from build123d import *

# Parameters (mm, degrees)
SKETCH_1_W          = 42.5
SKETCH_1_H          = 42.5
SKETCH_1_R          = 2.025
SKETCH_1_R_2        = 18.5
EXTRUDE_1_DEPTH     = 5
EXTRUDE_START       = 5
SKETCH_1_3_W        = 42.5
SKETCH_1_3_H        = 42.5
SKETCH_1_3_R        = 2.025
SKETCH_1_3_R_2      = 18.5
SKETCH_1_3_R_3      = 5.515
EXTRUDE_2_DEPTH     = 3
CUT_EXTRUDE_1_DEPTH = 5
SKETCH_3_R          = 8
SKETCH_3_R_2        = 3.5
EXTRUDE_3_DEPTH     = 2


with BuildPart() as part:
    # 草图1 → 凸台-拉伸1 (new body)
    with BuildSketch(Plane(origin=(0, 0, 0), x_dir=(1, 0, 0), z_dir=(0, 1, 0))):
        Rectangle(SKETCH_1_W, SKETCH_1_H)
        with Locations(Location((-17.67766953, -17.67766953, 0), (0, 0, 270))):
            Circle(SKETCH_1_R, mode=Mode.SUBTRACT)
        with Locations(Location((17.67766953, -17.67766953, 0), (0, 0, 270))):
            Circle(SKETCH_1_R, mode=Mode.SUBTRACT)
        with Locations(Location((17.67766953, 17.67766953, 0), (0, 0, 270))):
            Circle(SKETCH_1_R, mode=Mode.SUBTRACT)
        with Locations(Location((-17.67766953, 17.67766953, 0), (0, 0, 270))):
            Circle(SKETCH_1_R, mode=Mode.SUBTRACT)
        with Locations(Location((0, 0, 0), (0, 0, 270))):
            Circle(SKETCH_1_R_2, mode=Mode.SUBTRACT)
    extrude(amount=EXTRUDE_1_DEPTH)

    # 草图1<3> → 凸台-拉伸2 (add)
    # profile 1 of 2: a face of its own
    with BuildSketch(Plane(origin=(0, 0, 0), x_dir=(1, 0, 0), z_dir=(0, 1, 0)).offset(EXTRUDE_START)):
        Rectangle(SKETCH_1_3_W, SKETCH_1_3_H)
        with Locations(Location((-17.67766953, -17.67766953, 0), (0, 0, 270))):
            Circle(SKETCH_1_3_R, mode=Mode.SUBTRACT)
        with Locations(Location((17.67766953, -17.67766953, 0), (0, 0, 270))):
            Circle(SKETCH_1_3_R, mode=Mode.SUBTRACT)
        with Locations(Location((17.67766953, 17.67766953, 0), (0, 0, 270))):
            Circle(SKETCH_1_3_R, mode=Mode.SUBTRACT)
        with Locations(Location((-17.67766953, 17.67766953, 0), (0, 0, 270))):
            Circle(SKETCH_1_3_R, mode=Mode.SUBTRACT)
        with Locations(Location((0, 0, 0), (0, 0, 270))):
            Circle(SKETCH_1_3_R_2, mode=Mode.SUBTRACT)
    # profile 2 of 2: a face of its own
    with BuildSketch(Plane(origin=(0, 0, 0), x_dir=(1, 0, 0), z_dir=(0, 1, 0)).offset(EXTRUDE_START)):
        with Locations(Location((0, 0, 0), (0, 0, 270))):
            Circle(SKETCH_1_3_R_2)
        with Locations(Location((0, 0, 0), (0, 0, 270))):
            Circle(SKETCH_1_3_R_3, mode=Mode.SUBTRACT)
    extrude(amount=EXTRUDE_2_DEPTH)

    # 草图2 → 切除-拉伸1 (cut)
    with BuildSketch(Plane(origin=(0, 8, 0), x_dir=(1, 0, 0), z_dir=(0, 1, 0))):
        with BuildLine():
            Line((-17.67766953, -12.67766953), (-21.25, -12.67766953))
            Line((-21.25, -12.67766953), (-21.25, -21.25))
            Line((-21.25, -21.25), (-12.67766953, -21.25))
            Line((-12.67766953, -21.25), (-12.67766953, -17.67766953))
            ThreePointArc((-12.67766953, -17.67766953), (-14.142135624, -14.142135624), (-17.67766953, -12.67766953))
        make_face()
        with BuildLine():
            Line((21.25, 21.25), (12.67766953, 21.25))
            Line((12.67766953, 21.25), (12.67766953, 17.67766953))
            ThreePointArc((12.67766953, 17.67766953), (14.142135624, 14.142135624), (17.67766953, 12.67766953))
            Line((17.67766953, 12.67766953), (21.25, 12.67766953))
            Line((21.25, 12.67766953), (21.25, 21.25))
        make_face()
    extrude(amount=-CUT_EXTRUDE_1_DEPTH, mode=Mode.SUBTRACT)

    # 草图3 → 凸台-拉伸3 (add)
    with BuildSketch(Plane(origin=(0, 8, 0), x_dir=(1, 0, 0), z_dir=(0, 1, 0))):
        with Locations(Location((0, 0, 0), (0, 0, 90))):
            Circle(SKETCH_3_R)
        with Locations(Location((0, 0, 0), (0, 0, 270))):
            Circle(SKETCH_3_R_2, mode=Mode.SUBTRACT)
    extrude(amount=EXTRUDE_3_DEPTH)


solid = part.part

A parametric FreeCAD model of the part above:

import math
import FreeCAD as App
import Part
import Sketcher
from FreeCAD import Vector
Q = App.Units.Quantity

doc = App.newDocument("Part")
body = doc.addObject("PartDesign::Body", "Body")

# Sketch on XZ plane
sketch1 = body.newObject("Sketcher::SketchObject", "Sketch")
sketch1.AttachmentSupport = (doc.getObject("XZ_Plane"), [""])
sketch1.MapMode = "FlatFace"
sketch1.addGeometry(Part.LineSegment(Vector(-21.25, -21.25, 0), Vector(-21.25, 21.25, 0)), False)
sketch1.addGeometry(Part.LineSegment(Vector(-21.25, 21.25, 0), Vector(21.25, 21.25, 0)), False)
sketch1.addGeometry(Part.LineSegment(Vector(21.25, 21.25, 0), Vector(21.25, -21.25, 0)), False)
sketch1.addGeometry(Part.LineSegment(Vector(21.25, -21.25, 0), Vector(-21.25, -21.25, 0)), False)
sketch1.addGeometry(Part.Circle(Vector(-17.67767, 17.67767, 0), Vector(0, 0, 1), 2.025), False)
sketch1.addGeometry(Part.Circle(Vector(17.67767, 17.67767, 0), Vector(0, 0, 1), 2.025), False)
sketch1.addGeometry(Part.Circle(Vector(0, 0, 0), Vector(0, 0, 1), 18.5), False)
sketch1.addGeometry(Part.Circle(Vector(-17.67767, -17.67767, 0), Vector(0, 0, 1), 2.025), False)
sketch1.addGeometry(Part.Circle(Vector(17.67767, -17.67767, 0), Vector(0, 0, 1), 2.025), False)
sketch1.addConstraint(Sketcher.Constraint("Coincident", 0, 2, 1, 1))
sketch1.addConstraint(Sketcher.Constraint("Coincident", 1, 2, 2, 1))
sketch1.addConstraint(Sketcher.Constraint("Coincident", 2, 2, 3, 1))
sketch1.addConstraint(Sketcher.Constraint("Coincident", 3, 2, 0, 1))
sketch1.addConstraint(Sketcher.Constraint("Vertical", 0))
sketch1.addConstraint(Sketcher.Constraint("Horizontal", 1))
sketch1.addConstraint(Sketcher.Constraint("Vertical", 2))
sketch1.addConstraint(Sketcher.Constraint("Horizontal", 3))
sketch1.addConstraint(Sketcher.Constraint("Coincident", 6, 3, -1, 1))
sketch1.addConstraint(Sketcher.Constraint("Equal", 4, 5))
sketch1.addConstraint(Sketcher.Constraint("Equal", 5, 7))
sketch1.addConstraint(Sketcher.Constraint("Equal", 7, 8))
sketch1.addConstraint(Sketcher.Constraint("Symmetric", 5, 3, 7, 3, -1, 1))
sketch1.addConstraint(Sketcher.Constraint("Symmetric", 4, 3, 8, 3, -1, 1))
sketch1.addConstraint(Sketcher.Constraint("Symmetric", 0, 2, 2, 2, -1, 1))
sketch1.addConstraint(Sketcher.Constraint("Symmetric", 4, 3, 5, 3, -2))
sketch1.addConstraint(Sketcher.Constraint("Equal", 3, 0))
sketch1.addConstraint(Sketcher.Constraint("Diameter", 6, Q("37 mm")))
sketch1.addConstraint(Sketcher.Constraint("Diameter", 4, Q("4.05 mm")))
sketch1.addConstraint(Sketcher.Constraint("DistanceX", 1, 1, 1, 2, Q("42.5 mm")))
sketch1.addConstraint(Sketcher.Constraint("DistanceX", 4, 3, -1, 1, Q("17.67767 mm")))
sketch1.addConstraint(Sketcher.Constraint("DistanceY", -1, 1, 4, 3, Q("17.67767 mm")))
pad1 = body.newObject("PartDesign::Pad", "Pad")
pad1.Profile = sketch1
pad1.Length = 5
pad1.Reversed = True

# Sketch on XZ plane
sketch2 = body.newObject("Sketcher::SketchObject", "Sketch001")
sketch2.AttachmentSupport = (doc.getObject("XZ_Plane"), [""])
sketch2.MapMode = "FlatFace"
sketch2.AttachmentOffset = App.Placement(Vector(0, 0, -5), App.Rotation())
sketch2.addGeometry(Part.LineSegment(Vector(-21.25, -21.25, 0), Vector(-21.25, 21.25, 0)), False)
sketch2.addGeometry(Part.LineSegment(Vector(-21.25, 21.25, 0), Vector(21.25, 21.25, 0)), False)
sketch2.addGeometry(Part.LineSegment(Vector(21.25, 21.25, 0), Vector(21.25, -21.25, 0)), False)
sketch2.addGeometry(Part.LineSegment(Vector(21.25, -21.25, 0), Vector(-21.25, -21.25, 0)), False)
sketch2.addGeometry(Part.Circle(Vector(-17.67767, 17.67767, 0), Vector(0, 0, 1), 2.025), False)
sketch2.addGeometry(Part.Circle(Vector(17.67767, 17.67767, 0), Vector(0, 0, 1), 2.025), False)
sketch2.addGeometry(Part.Circle(Vector(-17.67767, -17.67767, 0), Vector(0, 0, 1), 2.025), False)
sketch2.addGeometry(Part.Circle(Vector(17.67767, -17.67767, 0), Vector(0, 0, 1), 2.025), False)
sketch2.addGeometry(Part.Circle(Vector(0, 0, 0), Vector(0, 0, 1), 5.515), False)
sketch2.addConstraint(Sketcher.Constraint("Coincident", 0, 2, 1, 1))
sketch2.addConstraint(Sketcher.Constraint("Coincident", 1, 2, 2, 1))
sketch2.addConstraint(Sketcher.Constraint("Coincident", 2, 2, 3, 1))
sketch2.addConstraint(Sketcher.Constraint("Coincident", 3, 2, 0, 1))
sketch2.addConstraint(Sketcher.Constraint("Vertical", 0))
sketch2.addConstraint(Sketcher.Constraint("Horizontal", 1))
sketch2.addConstraint(Sketcher.Constraint("Vertical", 2))
sketch2.addConstraint(Sketcher.Constraint("Horizontal", 3))
sketch2.addConstraint(Sketcher.Constraint("Coincident", 8, 3, -1, 1))
sketch2.addConstraint(Sketcher.Constraint("Equal", 4, 5))
sketch2.addConstraint(Sketcher.Constraint("Equal", 5, 6))
sketch2.addConstraint(Sketcher.Constraint("Equal", 6, 7))
sketch2.addConstraint(Sketcher.Constraint("Symmetric", 5, 3, 6, 3, -1, 1))
sketch2.addConstraint(Sketcher.Constraint("Symmetric", 4, 3, 7, 3, -1, 1))
sketch2.addConstraint(Sketcher.Constraint("Symmetric", 0, 2, 2, 2, -1, 1))
sketch2.addConstraint(Sketcher.Constraint("Symmetric", 4, 3, 5, 3, -2))
sketch2.addConstraint(Sketcher.Constraint("Equal", 3, 0))
sketch2.addConstraint(Sketcher.Constraint("Diameter", 4, Q("4.05 mm")))
sketch2.addConstraint(Sketcher.Constraint("Diameter", 8, Q("11.03 mm")))
sketch2.addConstraint(Sketcher.Constraint("DistanceX", 1, 1, 1, 2, Q("42.5 mm")))
sketch2.addConstraint(Sketcher.Constraint("DistanceX", 4, 3, -1, 1, Q("17.67767 mm")))
sketch2.addConstraint(Sketcher.Constraint("DistanceY", -1, 1, 4, 3, Q("17.67767 mm")))
pad2 = body.newObject("PartDesign::Pad", "Pad001")
pad2.Profile = sketch2
pad2.Length = 3
pad2.Reversed = True

# Sketch on XZ plane
sketch3 = body.newObject("Sketcher::SketchObject", "Sketch002")
sketch3.AttachmentSupport = (doc.getObject("XZ_Plane"), [""])
sketch3.MapMode = "FlatFace"
sketch3.AttachmentOffset = App.Placement(Vector(0, 0, -8), App.Rotation())
sketch3.addGeometry(Part.LineSegment(Vector(-17.67767, 12.67767, 0), Vector(-21.25, 12.67767, 0)), False)
sketch3.addGeometry(Part.LineSegment(Vector(-21.25, 12.67767, 0), Vector(-21.25, 21.25, 0)), False)
sketch3.addGeometry(Part.LineSegment(Vector(-21.25, 21.25, 0), Vector(-12.67767, 21.25, 0)), False)
sketch3.addGeometry(Part.LineSegment(Vector(-12.67767, 21.25, 0), Vector(-12.67767, 17.67767, 0)), False)
sketch3.addGeometry(Part.ArcOfCircle(Part.Circle(Vector(-17.67767, 17.67767, 0), Vector(0, 0, 1), 5), math.radians(-90), math.radians(0)), False)
sketch3.addGeometry(Part.LineSegment(Vector(21.25, -21.25, 0), Vector(12.67767, -21.25, 0)), False)
sketch3.addGeometry(Part.LineSegment(Vector(12.67767, -21.25, 0), Vector(12.67767, -17.67767, 0)), False)
sketch3.addGeometry(Part.ArcOfCircle(Part.Circle(Vector(17.67767, -17.67767, 0), Vector(0, 0, 1), 5), math.radians(90), math.radians(180)), False)
sketch3.addGeometry(Part.LineSegment(Vector(17.67767, -12.67767, 0), Vector(21.25, -12.67767, 0)), False)
sketch3.addGeometry(Part.LineSegment(Vector(21.25, -12.67767, 0), Vector(21.25, -21.25, 0)), False)
sketch3.addConstraint(Sketcher.Constraint("Coincident", 0, 2, 1, 1))
sketch3.addConstraint(Sketcher.Constraint("Coincident", 1, 2, 2, 1))
sketch3.addConstraint(Sketcher.Constraint("Coincident", 2, 2, 3, 1))
sketch3.addConstraint(Sketcher.Constraint("Tangent", 3, 2, 4, 2))
sketch3.addConstraint(Sketcher.Constraint("Tangent", 4, 1, 0, 1))
sketch3.addConstraint(Sketcher.Constraint("Coincident", 5, 2, 6, 1))
sketch3.addConstraint(Sketcher.Constraint("Tangent", 6, 2, 7, 2))
sketch3.addConstraint(Sketcher.Constraint("Tangent", 7, 1, 8, 1))
sketch3.addConstraint(Sketcher.Constraint("Coincident", 8, 2, 9, 1))
sketch3.addConstraint(Sketcher.Constraint("Coincident", 9, 2, 5, 1))
sketch3.addConstraint(Sketcher.Constraint("Horizontal", 0))
sketch3.addConstraint(Sketcher.Constraint("Vertical", 1))
sketch3.addConstraint(Sketcher.Constraint("Horizontal", 2))
sketch3.addConstraint(Sketcher.Constraint("Vertical", 3))
sketch3.addConstraint(Sketcher.Constraint("Horizontal", 5))
sketch3.addConstraint(Sketcher.Constraint("Vertical", 6))
sketch3.addConstraint(Sketcher.Constraint("Horizontal", 8))
sketch3.addConstraint(Sketcher.Constraint("Vertical", 9))
sketch3.addConstraint(Sketcher.Constraint("Equal", 4, 7))
sketch3.addConstraint(Sketcher.Constraint("Symmetric", 4, 3, 7, 3, -1, 1))
sketch3.addConstraint(Sketcher.Constraint("Symmetric", 1, 2, 9, 2, -1, 1))
sketch3.addConstraint(Sketcher.Constraint("Equal", 5, 1))
sketch3.addConstraint(Sketcher.Constraint("Radius", 4, Q("5 mm")))
sketch3.addConstraint(Sketcher.Constraint("DistanceX", 0, 2, -1, 1, Q("21.25 mm")))
sketch3.addConstraint(Sketcher.Constraint("DistanceY", -1, 1, 1, 2, Q("21.25 mm")))
sketch3.addConstraint(Sketcher.Constraint("DistanceX", 0, 2, 0, 1, Q("3.57233 mm")))
pocket1 = body.newObject("PartDesign::Pocket", "Pocket")
pocket1.Profile = sketch3
pocket1.Length = 5
pocket1.Reversed = True

# Sketch on XZ plane
sketch4 = body.newObject("Sketcher::SketchObject", "Sketch003")
sketch4.AttachmentSupport = (doc.getObject("XZ_Plane"), [""])
sketch4.MapMode = "FlatFace"
sketch4.AttachmentOffset = App.Placement(Vector(0, 0, -8), App.Rotation())
sketch4.addGeometry(Part.Circle(Vector(0, 0, 0), Vector(0, 0, 1), 8), False)
sketch4.addGeometry(Part.Circle(Vector(0, 0, 0), Vector(0, 0, 1), 3.5), False)
sketch4.addConstraint(Sketcher.Constraint("Coincident", 0, 3, -1, 1))
sketch4.addConstraint(Sketcher.Constraint("Coincident", 1, 3, -1, 1))
sketch4.addConstraint(Sketcher.Constraint("Diameter", 0, Q("16 mm")))
sketch4.addConstraint(Sketcher.Constraint("Diameter", 1, Q("7 mm")))
pad3 = body.newObject("PartDesign::Pad", "Pad002")
pad3.Profile = sketch4
pad3.Length = 2
pad3.Reversed = True

doc.recompute()
